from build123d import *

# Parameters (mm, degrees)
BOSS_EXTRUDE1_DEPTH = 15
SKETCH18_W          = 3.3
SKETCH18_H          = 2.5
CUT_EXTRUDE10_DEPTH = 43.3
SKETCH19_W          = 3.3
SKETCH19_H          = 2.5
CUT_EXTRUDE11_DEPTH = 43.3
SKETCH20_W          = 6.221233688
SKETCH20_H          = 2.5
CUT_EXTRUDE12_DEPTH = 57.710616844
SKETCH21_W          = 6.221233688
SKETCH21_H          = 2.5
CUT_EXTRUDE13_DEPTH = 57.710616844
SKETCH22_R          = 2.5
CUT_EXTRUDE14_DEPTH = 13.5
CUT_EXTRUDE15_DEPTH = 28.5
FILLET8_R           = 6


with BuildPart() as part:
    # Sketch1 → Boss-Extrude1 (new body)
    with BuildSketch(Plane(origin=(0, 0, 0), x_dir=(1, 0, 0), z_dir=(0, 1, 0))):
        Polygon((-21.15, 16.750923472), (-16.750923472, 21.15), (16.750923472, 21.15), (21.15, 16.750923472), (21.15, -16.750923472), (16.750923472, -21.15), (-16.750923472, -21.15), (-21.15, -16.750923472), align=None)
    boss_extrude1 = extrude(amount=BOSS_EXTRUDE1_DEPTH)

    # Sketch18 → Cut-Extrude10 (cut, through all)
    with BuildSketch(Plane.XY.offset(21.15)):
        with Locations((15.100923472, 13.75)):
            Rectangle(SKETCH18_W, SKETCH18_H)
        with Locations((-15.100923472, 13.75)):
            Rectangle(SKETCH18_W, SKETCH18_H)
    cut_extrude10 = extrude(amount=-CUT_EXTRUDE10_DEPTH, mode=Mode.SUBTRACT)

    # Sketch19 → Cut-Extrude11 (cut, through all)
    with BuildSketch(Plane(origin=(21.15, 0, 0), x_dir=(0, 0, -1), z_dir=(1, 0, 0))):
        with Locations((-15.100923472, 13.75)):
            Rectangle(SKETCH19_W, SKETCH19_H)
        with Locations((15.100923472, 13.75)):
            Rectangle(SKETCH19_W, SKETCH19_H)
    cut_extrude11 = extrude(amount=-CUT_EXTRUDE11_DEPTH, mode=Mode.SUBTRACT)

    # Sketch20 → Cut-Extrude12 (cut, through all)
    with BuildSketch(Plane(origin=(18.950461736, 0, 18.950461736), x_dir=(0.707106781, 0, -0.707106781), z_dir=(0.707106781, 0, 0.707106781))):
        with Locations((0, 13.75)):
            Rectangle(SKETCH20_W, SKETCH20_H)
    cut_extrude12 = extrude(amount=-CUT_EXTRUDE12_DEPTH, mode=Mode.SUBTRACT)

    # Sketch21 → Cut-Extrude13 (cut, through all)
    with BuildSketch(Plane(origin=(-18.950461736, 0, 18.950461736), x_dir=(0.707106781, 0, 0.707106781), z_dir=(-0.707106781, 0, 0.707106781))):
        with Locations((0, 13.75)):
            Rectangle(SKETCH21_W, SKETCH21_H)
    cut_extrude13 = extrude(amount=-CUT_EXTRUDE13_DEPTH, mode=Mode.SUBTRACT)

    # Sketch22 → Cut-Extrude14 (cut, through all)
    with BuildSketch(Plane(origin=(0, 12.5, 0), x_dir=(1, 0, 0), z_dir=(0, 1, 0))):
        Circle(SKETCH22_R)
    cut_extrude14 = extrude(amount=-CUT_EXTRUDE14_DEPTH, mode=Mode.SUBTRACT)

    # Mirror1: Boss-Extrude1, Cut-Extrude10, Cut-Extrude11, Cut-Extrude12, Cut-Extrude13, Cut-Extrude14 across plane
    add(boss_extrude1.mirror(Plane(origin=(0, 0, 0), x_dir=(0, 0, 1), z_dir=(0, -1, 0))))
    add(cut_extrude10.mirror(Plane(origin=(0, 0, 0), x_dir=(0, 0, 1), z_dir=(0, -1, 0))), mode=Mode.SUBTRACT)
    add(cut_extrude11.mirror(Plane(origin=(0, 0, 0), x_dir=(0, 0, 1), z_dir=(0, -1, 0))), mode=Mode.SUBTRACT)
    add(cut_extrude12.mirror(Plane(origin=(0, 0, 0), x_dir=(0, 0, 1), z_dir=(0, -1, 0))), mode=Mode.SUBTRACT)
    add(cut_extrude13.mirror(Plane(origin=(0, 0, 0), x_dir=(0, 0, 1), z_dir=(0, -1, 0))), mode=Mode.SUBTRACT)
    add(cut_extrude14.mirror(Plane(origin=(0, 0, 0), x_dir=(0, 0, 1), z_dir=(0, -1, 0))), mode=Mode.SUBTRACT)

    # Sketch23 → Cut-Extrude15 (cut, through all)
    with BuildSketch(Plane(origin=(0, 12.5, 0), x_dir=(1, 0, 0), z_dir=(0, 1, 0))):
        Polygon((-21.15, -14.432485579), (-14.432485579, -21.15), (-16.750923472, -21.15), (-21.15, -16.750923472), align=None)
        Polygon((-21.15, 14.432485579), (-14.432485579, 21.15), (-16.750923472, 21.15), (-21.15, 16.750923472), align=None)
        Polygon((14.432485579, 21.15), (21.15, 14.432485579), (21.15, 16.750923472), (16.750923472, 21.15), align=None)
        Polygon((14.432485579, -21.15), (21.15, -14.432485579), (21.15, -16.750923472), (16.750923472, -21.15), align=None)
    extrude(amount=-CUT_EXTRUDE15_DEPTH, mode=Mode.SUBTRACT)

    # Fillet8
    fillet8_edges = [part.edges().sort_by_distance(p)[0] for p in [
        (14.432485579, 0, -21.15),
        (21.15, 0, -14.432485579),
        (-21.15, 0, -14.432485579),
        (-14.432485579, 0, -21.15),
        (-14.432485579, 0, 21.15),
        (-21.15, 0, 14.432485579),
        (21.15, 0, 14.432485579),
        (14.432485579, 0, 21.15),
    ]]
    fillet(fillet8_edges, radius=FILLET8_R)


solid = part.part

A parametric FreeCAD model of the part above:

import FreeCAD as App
import Part
import Sketcher
from FreeCAD import Vector
Q = App.Units.Quantity


def edges_at(feature, points):
    """Names of the edges that pass closest to the given points."""
    edges = feature.Shape.Edges
    near = lambda p: min(range(len(edges)), key=lambda i: edges[i].distToShape(Part.Vertex(*p))[0])
    return sorted({f"Edge{near(p) + 1}" for p in points})


def add_polygon(sketch, points):
    """Adds a closed chain of lines whose ends are joined by coincident constraints."""
    first, n = sketch.GeometryCount, len(points)
    for a, b in zip(points, points[1:] + points[:1]):
        sketch.addGeometry(Part.LineSegment(App.Vector(*a, 0), App.Vector(*b, 0)), False)
    for i in range(n):
        sketch.addConstraint(Sketcher.Constraint("Coincident", first + i, 2, first + (i + 1) % n, 1))

doc = App.newDocument("Part")
params = doc.addObject("Spreadsheet::Sheet", "Params")
for row, (alias, value) in enumerate([
    ("pad1_length", "15 mm"),
    ("sketch2_width", "3.3 mm"),
    ("sketch2_height", "2.5 mm"),
    ("sketch3_width", "2.5 mm"),
    ("sketch3_height", "3.3 mm"),
    ("sketch4_height", "2.5 mm"),
    ("sketch5_height", "2.5 mm"),
    ("sketch6_diameter", "5 mm"),
    ("sketch7_length", "9.5 mm"),
    ("fillet_radius", "6 mm"),
], start=1):
    params.set(f"A{row}", alias)
    params.set(f"B{row}", "=" + value)
    params.setAlias(f"B{row}", alias)

body = doc.addObject("PartDesign::Body", "Body")

# Sketch on XZ plane
sketch1 = body.newObject("Sketcher::SketchObject", "Sketch")
sketch1.AttachmentSupport = (doc.getObject("XZ_Plane"), [""])
sketch1.MapMode = "FlatFace"
add_polygon(sketch1, [(-16.750923, -21.15), (-21.15, -16.750923), (-21.15, 16.750923), (-16.750923, 21.15), (16.750923, 21.15), (21.15, 16.750923), (21.15, -16.750923), (16.750923, -21.15)])  # lines 0-7
sketch1.addConstraint([
    Sketcher.Constraint("Vertical", 1),
    Sketcher.Constraint("Horizontal", 3),
    Sketcher.Constraint("Vertical", 5),
    Sketcher.Constraint("Horizontal", 7),
    Sketcher.Constraint("Symmetric", 0, 2, 4, 2, -1, 1),
    Sketcher.Constraint("Symmetric", 2, 2, 6, 2, -1, 1),
    Sketcher.Constraint("Perpendicular", 0, 2),
    Sketcher.Constraint("Perpendicular", 2, 4),
    Sketcher.Constraint("Perpendicular", 4, 6),
    Sketcher.Constraint("Horizontal", 1, 2, 4, 2),
    Sketcher.Constraint("Vertical", 3, 2, 6, 2),
    Sketcher.Constraint("Equal", 7, 1),
    Sketcher.Constraint("DistanceX", 1, 2, 4, 2, Q("42.3 mm")),
    Sketcher.Constraint("DistanceX", 3, 1, 3, 2, Q("33.501847 mm")),
])
pad1 = body.newObject("PartDesign::Pad", "Pad")
pad1.Profile = sketch1
pad1.setExpression("Length", "Params.pad1_length")
pad1.Reversed = True

# Sketch on XY plane
sketch2 = body.newObject("Sketcher::SketchObject", "Sketch001")
sketch2.AttachmentSupport = (doc.getObject("XY_Plane"), [""])
sketch2.MapMode = "FlatFace"
sketch2.AttachmentOffset = App.Placement(Vector(0, 0, 21.15), App.Rotation())
add_polygon(sketch2, [(13.450923, 15), (13.450923, 12.5), (16.750923, 12.5), (16.750923, 15)])  # lines 0-3
add_polygon(sketch2, [(-16.750923, 15), (-16.750923, 12.5), (-13.450923, 12.5), (-13.450923, 15)])  # lines 4-7
sketch2.addConstraint([
    Sketcher.Constraint("Vertical", 0),
    Sketcher.Constraint("Horizontal", 1),
    Sketcher.Constraint("Vertical", 2),
    Sketcher.Constraint("Horizontal", 3),
    Sketcher.Constraint("Vertical", 4),
    Sketcher.Constraint("Horizontal", 5),
    Sketcher.Constraint("Vertical", 6),
    Sketcher.Constraint("Horizontal", 7),
    Sketcher.Constraint("Symmetric", 1, 2, 4, 2, -2),
    Sketcher.Constraint("Symmetric", 3, 2, 6, 2, -2),
    Sketcher.Constraint("DistanceX", 1, 1, 1, 2, Q("3.3 mm")),
    Sketcher.Constraint("DistanceY", 0, 2, 0, 1, Q("2.5 mm")),
    Sketcher.Constraint("DistanceY", -1, 1, 2, 2, Q("15 mm")),
    Sketcher.Constraint("DistanceX", -1, 1, 0, 2, Q("13.450923 mm")),
])
sketch2.setExpression("Constraints[18]", "Params.sketch2_width")
sketch2.setExpression("Constraints[19]", "Params.sketch2_height")
pocket1 = body.newObject("PartDesign::Pocket", "Pocket")
pocket1.Profile = sketch2
pocket1.Type = "ThroughAll"

# Sketch on YZ plane
sketch3 = body.newObject("Sketcher::SketchObject", "Sketch002")
sketch3.AttachmentSupport = (doc.getObject("YZ_Plane"), [""])
sketch3.MapMode = "FlatFace"
sketch3.AttachmentOffset = App.Placement(Vector(0, 0, 21.15), App.Rotation())
add_polygon(sketch3, [(15, 16.750923), (12.5, 16.750923), (12.5, 13.450923), (15, 13.450923)])  # lines 0-3
add_polygon(sketch3, [(15, -13.450923), (12.5, -13.450923), (12.5, -16.750923), (15, -16.750923)])  # lines 4-7
sketch3.addConstraint([
    Sketcher.Constraint("Horizontal", 0),
    Sketcher.Constraint("Vertical", 1),
    Sketcher.Constraint("Horizontal", 2),
    Sketcher.Constraint("Vertical", 3),
    Sketcher.Constraint("Horizontal", 4),
    Sketcher.Constraint("Vertical", 5),
    Sketcher.Constraint("Horizontal", 6),
    Sketcher.Constraint("Vertical", 7),
    Sketcher.Constraint("Symmetric", 1, 2, 4, 2, -1),
    Sketcher.Constraint("Symmetric", 3, 2, 6, 2, -1),
    Sketcher.Constraint("DistanceX", 0, 2, 0, 1, Q("2.5 mm")),
    Sketcher.Constraint("DistanceY", 1, 2, 1, 1, Q("3.3 mm")),
    Sketcher.Constraint("DistanceX", -1, 1, 2, 2, Q("15 mm")),
    Sketcher.Constraint("DistanceY", -1, 1, 0, 2, Q("16.750923 mm")),
])
sketch3.setExpression("Constraints[18]", "Params.sketch3_width")
sketch3.setExpression("Constraints[19]", "Params.sketch3_height")
pocket2 = body.newObject("PartDesign::Pocket", "Pocket001")
pocket2.Profile = sketch3
pocket2.Type = "ThroughAll"

# Sketch on an angled plane
sketch4 = body.newObject("Sketcher::SketchObject", "Sketch003")
sketch4.Placement = App.Placement(Vector(18.950462, 0, 18.950462), App.Rotation(Vector(0.707106781, 0, -0.707106781), Vector(0, 0.999999999, 0), Vector(0.707106781, 0, 0.707106781), "ZXY"))
add_polygon(sketch4, [(-3.110617, 15), (-3.110617, 12.5), (3.110617, 12.5), (3.110617, 15)])  # lines 0-3
sketch4.addConstraint([
    Sketcher.Constraint("Vertical", 0),
    Sketcher.Constraint("Horizontal", 1),
    Sketcher.Constraint("Vertical", 2),
    Sketcher.Constraint("Horizontal", 3),
    Sketcher.Constraint("DistanceY", 0, 2, 0, 1, Q("2.5 mm")),
    Sketcher.Constraint("DistanceY", -1, 1, 2, 2, Q("15 mm")),
    Sketcher.Constraint("DistanceX", 1, 1, 1, 2, Q("6.221234 mm")),
    Sketcher.Constraint("DistanceX", 0, 2, -1, 1, Q("3.110617 mm")),
])
sketch4.setExpression("Constraints[8]", "Params.sketch4_height")
pocket3 = body.newObject("PartDesign::Pocket", "Pocket002")
pocket3.Profile = sketch4
pocket3.Type = "ThroughAll"

# Sketch on an angled plane
sketch5 = body.newObject("Sketcher::SketchObject", "Sketch004")
sketch5.Placement = App.Placement(Vector(-18.950462, 0, 18.950462), App.Rotation(Vector(0.707106781, 0, 0.707106781), Vector(0, 0.999999999, 0), Vector(-0.707106781, 0, 0.707106781), "ZXY"))
add_polygon(sketch5, [(-3.110617, 15), (-3.110617, 12.5), (3.110617, 12.5), (3.110617, 15)])  # lines 0-3
sketch5.addConstraint([
    Sketcher.Constraint("Vertical", 0),
    Sketcher.Constraint("Horizontal", 1),
    Sketcher.Constraint("Vertical", 2),
    Sketcher.Constraint("Horizontal", 3),
    Sketcher.Constraint("DistanceY", 0, 2, 0, 1, Q("2.5 mm")),
    Sketcher.Constraint("DistanceY", -1, 1, 2, 2, Q("15 mm")),
    Sketcher.Constraint("DistanceX", 1, 1, 1, 2, Q("6.221234 mm")),
    Sketcher.Constraint("DistanceX", 0, 2, -1, 1, Q("3.110617 mm")),
])
sketch5.setExpression("Constraints[8]", "Params.sketch5_height")
pocket4 = body.newObject("PartDesign::Pocket", "Pocket003")
pocket4.Profile = sketch5
pocket4.Type = "ThroughAll"

# Sketch on XZ plane
sketch6 = body.newObject("Sketcher::SketchObject", "Sketch005")
sketch6.AttachmentSupport = (doc.getObject("XZ_Plane"), [""])
sketch6.MapMode = "FlatFace"
sketch6.AttachmentOffset = App.Placement(Vector(0, 0, -12.5), App.Rotation())
sketch6.addGeometry(Part.Circle(Vector(0, 0, 0), Vector(0, 0, 1), 2.5), False)
sketch6.addConstraint([
    Sketcher.Constraint("Coincident", 0, 3, -1, 1),
    Sketcher.Constraint("Diameter", 0, Q("5 mm")),
])
sketch6.setExpression("Constraints[1]", "Params.sketch6_diameter")
pocket5 = body.newObject("PartDesign::Pocket", "Pocket004")
pocket5.Profile = sketch6
pocket5.Type = "ThroughAll"
pocket5.Reversed = True
doc.recompute()

mirrored = body.newObject("PartDesign::Mirrored", "Mirrored")
mirrored.Originals = [pad1, pocket1, pocket2, pocket3, pocket4, pocket5]
mirrored.MirrorPlane = (doc.getObject("XZ_Plane"), [""])
body.Tip = mirrored

# Sketch on XZ plane
sketch7 = body.newObject("Sketcher::SketchObject", "Sketch006")
sketch7.AttachmentSupport = (doc.getObject("XZ_Plane"), [""])
sketch7.MapMode = "FlatFace"
sketch7.AttachmentOffset = App.Placement(Vector(0, 0, -12.5), App.Rotation())
add_polygon(sketch7, [(-14.432486, 21.15), (-21.15, 14.432486), (-21.15, 16.750923), (-16.750923, 21.15)])  # lines 0-3
add_polygon(sketch7, [(-21.15, -14.432486), (-14.432486, -21.15), (-16.750923, -21.15), (-21.15, -16.750923)])  # lines 4-7
add_polygon(sketch7, [(14.432486, -21.15), (21.15, -14.432486), (21.15, -16.750923), (16.750923, -21.15)])  # lines 8-11
add_polygon(sketch7, [(21.15, 14.432486), (14.432486, 21.15), (16.750923, 21.15), (21.15, 16.750923)])  # lines 12-15
sketch7.addConstraint([
    Sketcher.Constraint("Vertical", 1),
    Sketcher.Constraint("Horizontal", 3),
    Sketcher.Constraint("Horizontal", 5),
    Sketcher.Constraint("Vertical", 7),
    Sketcher.Constraint("Vertical", 9),
    Sketcher.Constraint("Horizontal", 11),
    Sketcher.Constraint("Horizontal", 13),
    Sketcher.Constraint("Vertical", 15),
    Sketcher.Constraint("Symmetric", 0, 2, 8, 2, -1, 1),
    Sketcher.Constraint("Symmetric", 2, 2, 10, 2, -1, 1),
    Sketcher.Constraint("Symmetric", 4, 2, 12, 2, -1, 1),
    Sketcher.Constraint("Symmetric", 6, 2, 14, 2, -1, 1),
    Sketcher.Constraint("Symmetric", 7, 2, 8, 2, -2),
    Sketcher.Constraint("Symmetric", 5, 2, 10, 2, -2),
    Sketcher.Constraint("Parallel", 0, 2),
    Sketcher.Constraint("Perpendicular", 2, 4),
    Sketcher.Constraint("Parallel", 4, 6),
    Sketcher.Constraint("Perpendicular", 6, 8),
    Sketcher.Constraint("Parallel", 8, 10),
    Sketcher.Constraint("Perpendicular", 10, 12),
    Sketcher.Constraint("Parallel", 12, 14),
    Sketcher.Constraint("Horizontal", 6, 2, 9, 2),
    Sketcher.Constraint("Distance", 0, Q("9.5 mm")),
    Sketcher.Constraint("DistanceY", 4, 2, 3, 2, Q("42.3 mm")),
    Sketcher.Constraint("DistanceX", 7, 2, 8, 2, Q("42.3 mm")),
    Sketcher.Constraint("DistanceX", 3, 1, 3, 2, Q("2.318438 mm")),
])
sketch7.setExpression("Constraints[38]", "Params.sketch7_length")
pocket6 = body.newObject("PartDesign::Pocket", "Pocket005")
pocket6.Profile = sketch7
pocket6.Type = "ThroughAll"
pocket6.Reversed = True
doc.recompute()

fillet = body.newObject("PartDesign::Fillet", "Fillet")
fillet.Base = (pocket6, edges_at(pocket6, [
    (14.432, 0, -21.15),
    (21.15, 0, -14.432),
    (-21.15, 0, -14.432),
    (-14.432, 0, -21.15),
    (-14.432, 0, 21.15),
    (-21.15, 0, 14.432),
    (21.15, 0, 14.432),
    (14.432, 0, 21.15),
]))
fillet.setExpression("Radius", "Params.fillet_radius")

doc.recompute()
